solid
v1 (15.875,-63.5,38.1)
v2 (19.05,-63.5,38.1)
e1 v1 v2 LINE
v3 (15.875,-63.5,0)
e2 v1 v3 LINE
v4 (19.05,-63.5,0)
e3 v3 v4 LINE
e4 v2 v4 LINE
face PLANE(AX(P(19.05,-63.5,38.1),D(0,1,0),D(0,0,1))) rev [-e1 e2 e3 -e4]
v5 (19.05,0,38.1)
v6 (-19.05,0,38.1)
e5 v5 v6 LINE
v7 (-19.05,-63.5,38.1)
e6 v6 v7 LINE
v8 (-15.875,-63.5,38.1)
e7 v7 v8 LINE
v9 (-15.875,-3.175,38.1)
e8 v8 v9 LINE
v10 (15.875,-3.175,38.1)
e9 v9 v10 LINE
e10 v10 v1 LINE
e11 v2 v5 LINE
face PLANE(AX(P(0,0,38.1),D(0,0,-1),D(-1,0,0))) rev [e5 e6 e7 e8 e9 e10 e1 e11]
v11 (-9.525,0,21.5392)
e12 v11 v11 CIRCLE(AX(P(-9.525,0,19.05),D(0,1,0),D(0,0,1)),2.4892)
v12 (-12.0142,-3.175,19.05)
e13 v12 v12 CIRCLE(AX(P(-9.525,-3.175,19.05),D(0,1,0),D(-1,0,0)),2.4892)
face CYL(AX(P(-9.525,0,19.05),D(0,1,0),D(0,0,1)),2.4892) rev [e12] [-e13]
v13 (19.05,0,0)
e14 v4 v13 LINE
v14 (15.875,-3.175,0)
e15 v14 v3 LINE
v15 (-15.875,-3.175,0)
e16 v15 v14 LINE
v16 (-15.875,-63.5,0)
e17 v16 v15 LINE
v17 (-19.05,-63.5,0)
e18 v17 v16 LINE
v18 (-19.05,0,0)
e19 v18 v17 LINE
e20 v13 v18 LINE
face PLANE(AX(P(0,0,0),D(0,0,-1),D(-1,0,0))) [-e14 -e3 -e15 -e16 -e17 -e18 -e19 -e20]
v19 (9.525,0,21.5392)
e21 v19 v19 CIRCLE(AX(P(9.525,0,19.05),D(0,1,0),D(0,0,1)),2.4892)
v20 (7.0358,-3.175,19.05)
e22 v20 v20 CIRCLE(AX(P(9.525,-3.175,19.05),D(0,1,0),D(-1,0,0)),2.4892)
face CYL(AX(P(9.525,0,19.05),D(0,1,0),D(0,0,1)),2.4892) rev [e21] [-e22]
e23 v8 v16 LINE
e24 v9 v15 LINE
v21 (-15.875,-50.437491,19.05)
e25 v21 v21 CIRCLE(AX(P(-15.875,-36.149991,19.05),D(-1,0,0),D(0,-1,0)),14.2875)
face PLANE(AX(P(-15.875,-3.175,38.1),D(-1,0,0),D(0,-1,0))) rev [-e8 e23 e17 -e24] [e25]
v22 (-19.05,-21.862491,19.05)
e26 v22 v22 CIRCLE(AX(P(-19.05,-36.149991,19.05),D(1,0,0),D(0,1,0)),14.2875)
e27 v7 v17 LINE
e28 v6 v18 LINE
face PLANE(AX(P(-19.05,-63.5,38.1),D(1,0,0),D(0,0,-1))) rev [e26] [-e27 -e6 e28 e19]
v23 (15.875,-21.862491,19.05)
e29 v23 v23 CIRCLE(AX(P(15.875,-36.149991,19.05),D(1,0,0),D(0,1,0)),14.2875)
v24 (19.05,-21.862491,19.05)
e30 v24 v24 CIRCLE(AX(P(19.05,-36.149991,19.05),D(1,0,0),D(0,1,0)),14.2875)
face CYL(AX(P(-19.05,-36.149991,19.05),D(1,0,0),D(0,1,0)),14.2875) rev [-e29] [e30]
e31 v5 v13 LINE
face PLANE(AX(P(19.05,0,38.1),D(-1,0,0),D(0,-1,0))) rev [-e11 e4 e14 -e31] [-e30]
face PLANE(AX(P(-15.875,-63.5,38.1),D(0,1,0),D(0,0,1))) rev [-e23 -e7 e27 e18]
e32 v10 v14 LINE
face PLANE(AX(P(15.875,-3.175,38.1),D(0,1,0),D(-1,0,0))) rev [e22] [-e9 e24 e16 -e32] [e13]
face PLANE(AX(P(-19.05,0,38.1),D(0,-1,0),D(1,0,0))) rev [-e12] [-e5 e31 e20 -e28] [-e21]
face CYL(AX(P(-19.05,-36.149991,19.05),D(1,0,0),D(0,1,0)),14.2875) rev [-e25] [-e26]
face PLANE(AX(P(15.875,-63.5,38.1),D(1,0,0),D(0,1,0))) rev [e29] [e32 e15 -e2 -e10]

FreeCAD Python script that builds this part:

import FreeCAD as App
import Part
import Sketcher

V = App.Vector
Q = App.Units.Quantity

doc = App.newDocument("Part")
params = doc.addObject("Spreadsheet::Sheet", "Params")
for row, (alias, value) in enumerate([
    ("sketch1_width", "1.5 in"),
    ("sketch1_height", "2.5 in"),
    ("sketch1_width2", "1.25 in"),
    ("sketch1_height2", "2.375 in"),
    ("pad1_length", "1.5 in"),
    ("sketch2_diameter", "1.125 in"),
    ("sketch3_diameter", "0.196 in"),
    ("hole_diameter", "0.196 in"),
    ("hole_depth", "0.125 in"),
], start=1):
    params.set(f"A{row}", alias)
    params.set(f"B{row}", "=" + value)
    params.setAlias(f"B{row}", alias)

body = doc.addObject("PartDesign::Body", "Body")

# Sketch on XY plane
sketch1 = doc.addObject("Sketcher::SketchObject", "Sketch")
body.addObject(sketch1)
sketch1.AttachmentSupport = (doc.XY_Plane, [""])
sketch1.MapMode = "FlatFace"
sketch1.addGeometry([
    Part.LineSegment(V(19.1, 0, 0), V(-19.1, 0, 0)),  # 0
    Part.LineSegment(V(-19.1, 0, 0), V(-19.1, -63.5, 0)),  # 1
    Part.LineSegment(V(-19.1, -63.5, 0), V(-15.9, -63.5, 0)),  # 2
    Part.LineSegment(V(-15.9, -63.5, 0), V(-15.9, -3.2, 0)),  # 3
    Part.LineSegment(V(-15.9, -3.2, 0), V(15.9, -3.2, 0)),  # 4
    Part.LineSegment(V(15.9, -3.2, 0), V(15.9, -63.5, 0)),  # 5
    Part.LineSegment(V(15.9, -63.5, 0), V(19.1, -63.5, 0)),  # 6
    Part.LineSegment(V(19.1, -63.5, 0), V(19.1, 0, 0)),  # 7
], False)
sketch1.addConstraint([
    Sketcher.Constraint("Coincident", 0, 2, 1, 1),
    Sketcher.Constraint("Coincident", 1, 2, 2, 1),
    Sketcher.Constraint("Coincident", 2, 2, 3, 1),
    Sketcher.Constraint("Coincident", 3, 2, 4, 1),
    Sketcher.Constraint("Coincident", 4, 2, 5, 1),
    Sketcher.Constraint("Coincident", 5, 2, 6, 1),
    Sketcher.Constraint("Coincident", 6, 2, 7, 1),
    Sketcher.Constraint("Coincident", 7, 2, 0, 1),
    Sketcher.Constraint("Horizontal", 0),
    Sketcher.Constraint("Vertical", 1),
    Sketcher.Constraint("Horizontal", 2),
    Sketcher.Constraint("Vertical", 3),
    Sketcher.Constraint("Horizontal", 4),
    Sketcher.Constraint("Vertical", 5),
    Sketcher.Constraint("Horizontal", 6),
    Sketcher.Constraint("Vertical", 7),
    Sketcher.Constraint("Symmetric", 0, 2, 7, 2, -1, 1),
    Sketcher.Constraint("Symmetric", 2, 2, 5, 2, -2),
    Sketcher.Constraint("DistanceX", 0, 2, 0, 1, Q("1.5 in")),
    Sketcher.Constraint("DistanceY", 1, 2, 1, 1, Q("2.5 in")),
    Sketcher.Constraint("DistanceX", 4, 1, 4, 2, Q("1.25 in")),
    Sketcher.Constraint("DistanceY", 3, 1, 3, 2, Q("2.375 in")),
])
sketch1.setExpression("Constraints[18]", "Params.sketch1_width")
sketch1.setExpression("Constraints[19]", "Params.sketch1_height")
sketch1.setExpression("Constraints[20]", "Params.sketch1_width2")
sketch1.setExpression("Constraints[21]", "Params.sketch1_height2")
pad1 = doc.addObject("PartDesign::Pad", "Pad")
body.addObject(pad1)
pad1.Profile = sketch1
pad1.setExpression("Length", "Params.pad1_length")

# Sketch on YZ plane
sketch2 = doc.addObject("Sketcher::SketchObject", "Sketch001")
body.addObject(sketch2)
sketch2.AttachmentSupport = (doc.YZ_Plane, [""])
sketch2.MapMode = "FlatFace"
sketch2.AttachmentOffset = App.Placement(V(0, 0, 0.75 * 25.4), App.Rotation())
sketch2.addGeometry(Part.Circle(V(-36, 19, 0), V(0, 0, 1), 14), False)
sketch2.addConstraint([
    Sketcher.Constraint("Diameter", 0, Q("1.125 in")),
    Sketcher.Constraint("DistanceY", -1, 1, 0, 3, Q("0.75 in")),
    Sketcher.Constraint("DistanceX", 0, 3, -1, 1, 36.149991),
])
sketch2.setExpression("Constraints[0]", "Params.sketch2_diameter")
pocket1 = doc.addObject("PartDesign::Pocket", "Pocket")
body.addObject(pocket1)
pocket1.Profile = sketch2
pocket1.Type = "ThroughAll"

# Sketch on XZ plane
sketch3 = doc.addObject("Sketcher::SketchObject", "Sketch002")
body.addObject(sketch3)
sketch3.AttachmentSupport = (doc.XZ_Plane, [""])
sketch3.MapMode = "FlatFace"
sketch3.addGeometry([
    Part.Circle(V(-9.5, 19.1, 0), V(0, 0, 1), 2.5),
    Part.Circle(V(9.5, 19.1, 0), V(0, 0, 1), 2.5),
], False)
sketch3.addConstraint([
    Sketcher.Constraint("Equal", 0, 1),
    Sketcher.Constraint("Symmetric", 0, 3, 1, 3, -2),
    Sketcher.Constraint("Diameter", 0, Q("0.196 in")),
    Sketcher.Constraint("DistanceY", -1, 1, 0, 3, Q("0.75 in")),
    Sketcher.Constraint("DistanceX", 0, 3, 1, 3, Q("0.75 in")),
])
sketch3.setExpression("Constraints[2]", "Params.sketch3_diameter")
doc.recompute()
hole = doc.addObject("PartDesign::Hole", "Hole")
body.addObject(hole)
hole.Profile = sketch3
hole.ThreadType = "None"
hole.setExpression("Diameter", "Params.hole_diameter")
hole.DepthType = "Dimension"
hole.setExpression("Depth", "Params.hole_depth")
hole.DrillPoint = "Flat"
hole.Reversed = True

doc.recompute()
